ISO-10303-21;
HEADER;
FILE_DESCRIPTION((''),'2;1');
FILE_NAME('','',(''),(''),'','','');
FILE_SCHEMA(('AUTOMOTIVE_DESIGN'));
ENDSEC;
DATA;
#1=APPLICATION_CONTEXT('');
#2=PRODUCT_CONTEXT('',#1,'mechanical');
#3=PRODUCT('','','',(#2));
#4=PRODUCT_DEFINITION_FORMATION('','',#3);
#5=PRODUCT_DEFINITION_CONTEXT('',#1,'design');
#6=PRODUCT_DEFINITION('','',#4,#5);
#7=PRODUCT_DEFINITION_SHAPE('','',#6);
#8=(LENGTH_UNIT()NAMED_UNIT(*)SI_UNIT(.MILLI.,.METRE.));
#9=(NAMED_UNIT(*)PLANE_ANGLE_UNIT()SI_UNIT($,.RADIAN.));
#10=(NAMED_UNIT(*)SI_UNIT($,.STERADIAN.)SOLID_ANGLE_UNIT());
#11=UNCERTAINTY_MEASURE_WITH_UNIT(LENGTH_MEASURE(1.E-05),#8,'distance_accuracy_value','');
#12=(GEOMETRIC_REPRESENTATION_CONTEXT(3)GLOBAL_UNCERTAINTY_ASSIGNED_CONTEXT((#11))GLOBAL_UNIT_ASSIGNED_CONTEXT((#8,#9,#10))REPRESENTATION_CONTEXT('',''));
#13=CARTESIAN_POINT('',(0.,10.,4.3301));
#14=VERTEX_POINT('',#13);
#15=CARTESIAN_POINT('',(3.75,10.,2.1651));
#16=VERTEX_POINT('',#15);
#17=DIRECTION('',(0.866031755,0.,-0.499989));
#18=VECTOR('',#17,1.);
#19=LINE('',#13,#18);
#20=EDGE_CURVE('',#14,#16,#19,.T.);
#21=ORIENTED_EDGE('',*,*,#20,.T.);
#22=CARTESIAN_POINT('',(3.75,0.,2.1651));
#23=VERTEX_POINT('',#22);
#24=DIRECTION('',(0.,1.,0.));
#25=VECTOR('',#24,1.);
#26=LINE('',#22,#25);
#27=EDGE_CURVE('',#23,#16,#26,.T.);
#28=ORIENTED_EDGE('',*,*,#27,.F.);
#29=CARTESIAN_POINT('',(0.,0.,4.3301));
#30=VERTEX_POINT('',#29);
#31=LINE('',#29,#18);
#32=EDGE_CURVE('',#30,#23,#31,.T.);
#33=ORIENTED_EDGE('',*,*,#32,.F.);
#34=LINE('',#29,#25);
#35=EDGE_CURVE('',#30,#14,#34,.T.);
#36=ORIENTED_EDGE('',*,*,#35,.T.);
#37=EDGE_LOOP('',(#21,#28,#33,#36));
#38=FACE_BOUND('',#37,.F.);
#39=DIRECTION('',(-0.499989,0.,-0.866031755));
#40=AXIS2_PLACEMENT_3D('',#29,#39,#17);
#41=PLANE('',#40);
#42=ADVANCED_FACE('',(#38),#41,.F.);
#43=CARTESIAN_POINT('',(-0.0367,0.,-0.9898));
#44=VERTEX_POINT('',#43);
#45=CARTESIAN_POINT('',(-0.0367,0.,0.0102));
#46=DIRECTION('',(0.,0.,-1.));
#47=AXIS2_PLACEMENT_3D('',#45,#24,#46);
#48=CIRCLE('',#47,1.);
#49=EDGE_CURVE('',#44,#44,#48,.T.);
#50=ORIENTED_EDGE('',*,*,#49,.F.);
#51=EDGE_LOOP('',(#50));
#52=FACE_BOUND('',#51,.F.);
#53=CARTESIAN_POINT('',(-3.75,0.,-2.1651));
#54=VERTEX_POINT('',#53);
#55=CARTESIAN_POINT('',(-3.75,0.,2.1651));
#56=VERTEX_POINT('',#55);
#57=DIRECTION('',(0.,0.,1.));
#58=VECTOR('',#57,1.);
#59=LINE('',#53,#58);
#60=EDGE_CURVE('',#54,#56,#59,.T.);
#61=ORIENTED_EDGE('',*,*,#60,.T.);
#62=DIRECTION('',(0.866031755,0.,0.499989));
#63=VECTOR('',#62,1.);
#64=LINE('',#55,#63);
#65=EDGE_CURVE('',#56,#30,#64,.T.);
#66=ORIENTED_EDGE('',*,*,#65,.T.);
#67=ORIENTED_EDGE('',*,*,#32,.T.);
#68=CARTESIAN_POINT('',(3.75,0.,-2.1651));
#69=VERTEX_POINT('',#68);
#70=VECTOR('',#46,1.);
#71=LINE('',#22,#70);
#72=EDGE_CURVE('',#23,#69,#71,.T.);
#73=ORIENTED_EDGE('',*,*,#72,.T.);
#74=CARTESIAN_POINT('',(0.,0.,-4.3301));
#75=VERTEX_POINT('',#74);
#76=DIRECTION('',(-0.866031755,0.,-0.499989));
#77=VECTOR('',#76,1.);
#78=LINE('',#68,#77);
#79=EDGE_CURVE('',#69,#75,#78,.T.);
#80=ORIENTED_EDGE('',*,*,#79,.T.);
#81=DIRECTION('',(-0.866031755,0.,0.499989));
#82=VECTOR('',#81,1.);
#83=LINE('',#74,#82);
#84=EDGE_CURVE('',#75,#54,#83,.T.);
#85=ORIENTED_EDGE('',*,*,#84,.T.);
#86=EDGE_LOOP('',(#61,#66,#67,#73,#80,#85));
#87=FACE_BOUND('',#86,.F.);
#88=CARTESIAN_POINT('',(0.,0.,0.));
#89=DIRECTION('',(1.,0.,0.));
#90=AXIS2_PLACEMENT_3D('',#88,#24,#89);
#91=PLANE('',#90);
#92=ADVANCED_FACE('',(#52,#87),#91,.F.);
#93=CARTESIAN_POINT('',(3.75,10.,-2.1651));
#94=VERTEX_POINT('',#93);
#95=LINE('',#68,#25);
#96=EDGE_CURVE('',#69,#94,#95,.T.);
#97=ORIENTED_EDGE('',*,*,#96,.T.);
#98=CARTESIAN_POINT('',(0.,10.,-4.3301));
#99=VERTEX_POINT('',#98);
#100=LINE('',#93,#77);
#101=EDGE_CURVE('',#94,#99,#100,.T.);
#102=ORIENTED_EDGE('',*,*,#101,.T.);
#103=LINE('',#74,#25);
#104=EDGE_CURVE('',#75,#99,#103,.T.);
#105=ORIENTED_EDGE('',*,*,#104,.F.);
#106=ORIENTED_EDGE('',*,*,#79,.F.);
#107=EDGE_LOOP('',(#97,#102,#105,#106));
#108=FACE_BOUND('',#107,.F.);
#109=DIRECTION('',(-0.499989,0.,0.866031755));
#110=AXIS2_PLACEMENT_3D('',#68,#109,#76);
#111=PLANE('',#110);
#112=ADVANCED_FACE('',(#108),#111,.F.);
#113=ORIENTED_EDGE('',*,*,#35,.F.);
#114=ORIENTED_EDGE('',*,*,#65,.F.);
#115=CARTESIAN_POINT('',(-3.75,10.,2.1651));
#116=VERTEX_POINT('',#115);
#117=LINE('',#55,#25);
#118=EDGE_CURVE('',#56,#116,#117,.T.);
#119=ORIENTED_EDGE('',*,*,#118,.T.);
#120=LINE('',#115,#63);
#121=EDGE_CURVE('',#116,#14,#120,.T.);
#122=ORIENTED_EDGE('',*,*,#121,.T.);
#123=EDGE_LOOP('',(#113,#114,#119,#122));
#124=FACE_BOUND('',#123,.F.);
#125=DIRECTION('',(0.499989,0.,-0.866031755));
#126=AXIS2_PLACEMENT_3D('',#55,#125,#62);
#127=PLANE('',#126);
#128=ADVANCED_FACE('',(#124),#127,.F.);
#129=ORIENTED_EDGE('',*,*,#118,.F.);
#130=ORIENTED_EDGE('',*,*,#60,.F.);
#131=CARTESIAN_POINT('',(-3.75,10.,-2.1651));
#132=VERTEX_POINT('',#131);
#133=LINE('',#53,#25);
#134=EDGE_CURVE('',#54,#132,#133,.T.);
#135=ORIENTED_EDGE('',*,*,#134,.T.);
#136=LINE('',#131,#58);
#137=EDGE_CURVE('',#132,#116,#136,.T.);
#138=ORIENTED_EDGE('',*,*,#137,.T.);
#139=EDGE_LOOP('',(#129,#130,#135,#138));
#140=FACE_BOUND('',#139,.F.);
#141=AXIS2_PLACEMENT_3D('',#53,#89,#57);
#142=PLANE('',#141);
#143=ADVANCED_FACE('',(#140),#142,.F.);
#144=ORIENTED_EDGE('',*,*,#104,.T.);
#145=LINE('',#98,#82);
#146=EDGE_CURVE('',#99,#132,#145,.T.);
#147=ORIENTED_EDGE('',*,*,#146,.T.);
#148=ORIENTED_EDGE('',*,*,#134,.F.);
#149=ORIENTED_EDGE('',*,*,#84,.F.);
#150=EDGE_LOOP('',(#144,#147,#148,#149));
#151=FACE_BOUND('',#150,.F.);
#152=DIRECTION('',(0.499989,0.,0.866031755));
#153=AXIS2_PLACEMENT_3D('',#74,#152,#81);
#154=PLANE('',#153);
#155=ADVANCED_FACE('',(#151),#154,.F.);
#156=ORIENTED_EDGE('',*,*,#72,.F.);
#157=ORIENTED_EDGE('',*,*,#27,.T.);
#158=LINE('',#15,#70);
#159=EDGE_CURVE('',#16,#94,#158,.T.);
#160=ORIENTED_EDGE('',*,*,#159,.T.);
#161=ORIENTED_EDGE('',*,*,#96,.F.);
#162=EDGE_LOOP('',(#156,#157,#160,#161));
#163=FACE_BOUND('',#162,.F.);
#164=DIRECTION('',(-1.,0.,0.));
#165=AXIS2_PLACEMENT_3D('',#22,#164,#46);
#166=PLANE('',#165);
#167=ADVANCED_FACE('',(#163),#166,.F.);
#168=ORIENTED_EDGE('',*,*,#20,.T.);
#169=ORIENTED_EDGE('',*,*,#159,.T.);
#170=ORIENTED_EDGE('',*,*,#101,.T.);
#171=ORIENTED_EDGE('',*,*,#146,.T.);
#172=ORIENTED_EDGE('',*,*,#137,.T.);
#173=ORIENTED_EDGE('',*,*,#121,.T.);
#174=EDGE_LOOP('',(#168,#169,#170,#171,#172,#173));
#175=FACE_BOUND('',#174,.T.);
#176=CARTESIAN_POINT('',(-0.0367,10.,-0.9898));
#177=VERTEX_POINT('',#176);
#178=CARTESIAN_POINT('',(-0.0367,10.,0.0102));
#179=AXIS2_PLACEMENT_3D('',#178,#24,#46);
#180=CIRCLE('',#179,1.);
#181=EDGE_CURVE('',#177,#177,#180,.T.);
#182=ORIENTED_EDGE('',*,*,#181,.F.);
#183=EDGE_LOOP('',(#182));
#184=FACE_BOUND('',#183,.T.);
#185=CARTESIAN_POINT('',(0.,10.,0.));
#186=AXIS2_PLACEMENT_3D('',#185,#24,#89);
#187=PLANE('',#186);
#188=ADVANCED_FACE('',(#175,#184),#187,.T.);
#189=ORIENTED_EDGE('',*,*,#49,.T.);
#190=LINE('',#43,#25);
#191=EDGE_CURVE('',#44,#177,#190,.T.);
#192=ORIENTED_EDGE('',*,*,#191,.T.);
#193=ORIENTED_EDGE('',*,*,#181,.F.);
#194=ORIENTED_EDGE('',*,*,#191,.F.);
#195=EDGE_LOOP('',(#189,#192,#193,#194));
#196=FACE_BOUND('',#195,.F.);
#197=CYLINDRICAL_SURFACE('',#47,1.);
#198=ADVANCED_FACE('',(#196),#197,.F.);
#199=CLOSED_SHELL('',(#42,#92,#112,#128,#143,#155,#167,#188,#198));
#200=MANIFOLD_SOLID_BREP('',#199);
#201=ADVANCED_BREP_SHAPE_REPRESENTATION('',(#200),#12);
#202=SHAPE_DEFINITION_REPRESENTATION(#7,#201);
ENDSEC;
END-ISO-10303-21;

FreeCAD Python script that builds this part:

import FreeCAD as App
import Part
import Sketcher

V = App.Vector
Q = App.Units.Quantity

doc = App.newDocument("Part")
params = doc.addObject("Spreadsheet::Sheet", "Params")
for row, (alias, value) in enumerate([
    ("pad1_length", "10 mm"),
    ("sketch2_diameter", "2 mm"),
    ("hole_diameter", "2 mm"),
    ("hole_depth", "10 mm"),
], start=1):
    params.set(f"A{row}", alias)
    params.set(f"B{row}", "=" + value)
    params.setAlias(f"B{row}", alias)

body = doc.addObject("PartDesign::Body", "Body")

# Sketch on XZ plane
sketch1 = body.newObject("Sketcher::SketchObject", "Sketch")
sketch1.AttachmentSupport = (doc.getObject("XZ_Plane"), [""])
sketch1.MapMode = "FlatFace"
sketch1.addGeometry(Part.LineSegment(V(3.75, 2.1651, 0), V(3.75, -2.1651, 0)), False)
sketch1.addGeometry(Part.LineSegment(V(3.75, -2.1651, 0), V(0, -4.3301, 0)), False)
sketch1.addGeometry(Part.LineSegment(V(0, -4.3301, 0), V(-3.75, -2.1651, 0)), False)
sketch1.addGeometry(Part.LineSegment(V(-3.75, -2.1651, 0), V(-3.75, 2.1651, 0)), False)
sketch1.addGeometry(Part.LineSegment(V(-3.75, 2.1651, 0), V(0, 4.3301, 0)), False)
sketch1.addGeometry(Part.LineSegment(V(0, 4.3301, 0), V(3.75, 2.1651, 0)), False)
sketch1.addConstraint(Sketcher.Constraint("Coincident", 0, 2, 1, 1))
sketch1.addConstraint(Sketcher.Constraint("Coincident", 1, 2, 2, 1))
sketch1.addConstraint(Sketcher.Constraint("Coincident", 2, 2, 3, 1))
sketch1.addConstraint(Sketcher.Constraint("Coincident", 3, 2, 4, 1))
sketch1.addConstraint(Sketcher.Constraint("Coincident", 4, 2, 5, 1))
sketch1.addConstraint(Sketcher.Constraint("Coincident", 5, 2, 0, 1))
sketch1.addConstraint(Sketcher.Constraint("Vertical", 0))
sketch1.addConstraint(Sketcher.Constraint("Vertical", 3))
sketch1.addConstraint(Sketcher.Constraint("Symmetric", 0, 2, 3, 2, -1, 1))
sketch1.addConstraint(Sketcher.Constraint("Symmetric", 1, 2, 4, 2, -1, 1))
sketch1.addConstraint(Sketcher.Constraint("PointOnObject", 1, 2, -2))
sketch1.addConstraint(Sketcher.Constraint("Parallel", 2, 5))
sketch1.addConstraint(Sketcher.Constraint("Horizontal", 0, 2, 2, 2))
sketch1.addConstraint(Sketcher.Constraint("DistanceX", -1, 1, 0, 2, 3.75))
sketch1.addConstraint(Sketcher.Constraint("Angle", 1, Q("-150.0007 deg")))
sketch1.addConstraint(Sketcher.Constraint("DistanceY", 1, 2, -1, 1, 4.33))
pad1 = body.newObject("PartDesign::Pad", "Pad")
pad1.Profile = sketch1
pad1.setExpression("Length", "Params.pad1_length")
pad1.Reversed = True

# Sketch on XZ plane
sketch2 = body.newObject("Sketcher::SketchObject", "Sketch001")
sketch2.AttachmentSupport = (doc.getObject("XZ_Plane"), [""])
sketch2.MapMode = "FlatFace"
sketch2.addGeometry(Part.Circle(V(-0.0367, 0.0102, 0), V(0, 0, 1), 1), False)
sketch2.addConstraint(Sketcher.Constraint("Diameter", 0, 2.0))
sketch2.addConstraint(Sketcher.Constraint("DistanceX", 0, 3, -1, 1, 0.0367))
sketch2.addConstraint(Sketcher.Constraint("DistanceY", -1, 1, 0, 3, 0.0102))
sketch2.setExpression("Constraints[0]", "Params.sketch2_diameter")
doc.recompute()
hole = body.newObject("PartDesign::Hole", "Hole")
hole.Profile = sketch2
hole.ThreadType = "None"
hole.setExpression("Diameter", "Params.hole_diameter")
hole.DepthType = "Dimension"
hole.setExpression("Depth", "Params.hole_depth")
hole.DrillPoint = "Flat"

doc.recompute()
